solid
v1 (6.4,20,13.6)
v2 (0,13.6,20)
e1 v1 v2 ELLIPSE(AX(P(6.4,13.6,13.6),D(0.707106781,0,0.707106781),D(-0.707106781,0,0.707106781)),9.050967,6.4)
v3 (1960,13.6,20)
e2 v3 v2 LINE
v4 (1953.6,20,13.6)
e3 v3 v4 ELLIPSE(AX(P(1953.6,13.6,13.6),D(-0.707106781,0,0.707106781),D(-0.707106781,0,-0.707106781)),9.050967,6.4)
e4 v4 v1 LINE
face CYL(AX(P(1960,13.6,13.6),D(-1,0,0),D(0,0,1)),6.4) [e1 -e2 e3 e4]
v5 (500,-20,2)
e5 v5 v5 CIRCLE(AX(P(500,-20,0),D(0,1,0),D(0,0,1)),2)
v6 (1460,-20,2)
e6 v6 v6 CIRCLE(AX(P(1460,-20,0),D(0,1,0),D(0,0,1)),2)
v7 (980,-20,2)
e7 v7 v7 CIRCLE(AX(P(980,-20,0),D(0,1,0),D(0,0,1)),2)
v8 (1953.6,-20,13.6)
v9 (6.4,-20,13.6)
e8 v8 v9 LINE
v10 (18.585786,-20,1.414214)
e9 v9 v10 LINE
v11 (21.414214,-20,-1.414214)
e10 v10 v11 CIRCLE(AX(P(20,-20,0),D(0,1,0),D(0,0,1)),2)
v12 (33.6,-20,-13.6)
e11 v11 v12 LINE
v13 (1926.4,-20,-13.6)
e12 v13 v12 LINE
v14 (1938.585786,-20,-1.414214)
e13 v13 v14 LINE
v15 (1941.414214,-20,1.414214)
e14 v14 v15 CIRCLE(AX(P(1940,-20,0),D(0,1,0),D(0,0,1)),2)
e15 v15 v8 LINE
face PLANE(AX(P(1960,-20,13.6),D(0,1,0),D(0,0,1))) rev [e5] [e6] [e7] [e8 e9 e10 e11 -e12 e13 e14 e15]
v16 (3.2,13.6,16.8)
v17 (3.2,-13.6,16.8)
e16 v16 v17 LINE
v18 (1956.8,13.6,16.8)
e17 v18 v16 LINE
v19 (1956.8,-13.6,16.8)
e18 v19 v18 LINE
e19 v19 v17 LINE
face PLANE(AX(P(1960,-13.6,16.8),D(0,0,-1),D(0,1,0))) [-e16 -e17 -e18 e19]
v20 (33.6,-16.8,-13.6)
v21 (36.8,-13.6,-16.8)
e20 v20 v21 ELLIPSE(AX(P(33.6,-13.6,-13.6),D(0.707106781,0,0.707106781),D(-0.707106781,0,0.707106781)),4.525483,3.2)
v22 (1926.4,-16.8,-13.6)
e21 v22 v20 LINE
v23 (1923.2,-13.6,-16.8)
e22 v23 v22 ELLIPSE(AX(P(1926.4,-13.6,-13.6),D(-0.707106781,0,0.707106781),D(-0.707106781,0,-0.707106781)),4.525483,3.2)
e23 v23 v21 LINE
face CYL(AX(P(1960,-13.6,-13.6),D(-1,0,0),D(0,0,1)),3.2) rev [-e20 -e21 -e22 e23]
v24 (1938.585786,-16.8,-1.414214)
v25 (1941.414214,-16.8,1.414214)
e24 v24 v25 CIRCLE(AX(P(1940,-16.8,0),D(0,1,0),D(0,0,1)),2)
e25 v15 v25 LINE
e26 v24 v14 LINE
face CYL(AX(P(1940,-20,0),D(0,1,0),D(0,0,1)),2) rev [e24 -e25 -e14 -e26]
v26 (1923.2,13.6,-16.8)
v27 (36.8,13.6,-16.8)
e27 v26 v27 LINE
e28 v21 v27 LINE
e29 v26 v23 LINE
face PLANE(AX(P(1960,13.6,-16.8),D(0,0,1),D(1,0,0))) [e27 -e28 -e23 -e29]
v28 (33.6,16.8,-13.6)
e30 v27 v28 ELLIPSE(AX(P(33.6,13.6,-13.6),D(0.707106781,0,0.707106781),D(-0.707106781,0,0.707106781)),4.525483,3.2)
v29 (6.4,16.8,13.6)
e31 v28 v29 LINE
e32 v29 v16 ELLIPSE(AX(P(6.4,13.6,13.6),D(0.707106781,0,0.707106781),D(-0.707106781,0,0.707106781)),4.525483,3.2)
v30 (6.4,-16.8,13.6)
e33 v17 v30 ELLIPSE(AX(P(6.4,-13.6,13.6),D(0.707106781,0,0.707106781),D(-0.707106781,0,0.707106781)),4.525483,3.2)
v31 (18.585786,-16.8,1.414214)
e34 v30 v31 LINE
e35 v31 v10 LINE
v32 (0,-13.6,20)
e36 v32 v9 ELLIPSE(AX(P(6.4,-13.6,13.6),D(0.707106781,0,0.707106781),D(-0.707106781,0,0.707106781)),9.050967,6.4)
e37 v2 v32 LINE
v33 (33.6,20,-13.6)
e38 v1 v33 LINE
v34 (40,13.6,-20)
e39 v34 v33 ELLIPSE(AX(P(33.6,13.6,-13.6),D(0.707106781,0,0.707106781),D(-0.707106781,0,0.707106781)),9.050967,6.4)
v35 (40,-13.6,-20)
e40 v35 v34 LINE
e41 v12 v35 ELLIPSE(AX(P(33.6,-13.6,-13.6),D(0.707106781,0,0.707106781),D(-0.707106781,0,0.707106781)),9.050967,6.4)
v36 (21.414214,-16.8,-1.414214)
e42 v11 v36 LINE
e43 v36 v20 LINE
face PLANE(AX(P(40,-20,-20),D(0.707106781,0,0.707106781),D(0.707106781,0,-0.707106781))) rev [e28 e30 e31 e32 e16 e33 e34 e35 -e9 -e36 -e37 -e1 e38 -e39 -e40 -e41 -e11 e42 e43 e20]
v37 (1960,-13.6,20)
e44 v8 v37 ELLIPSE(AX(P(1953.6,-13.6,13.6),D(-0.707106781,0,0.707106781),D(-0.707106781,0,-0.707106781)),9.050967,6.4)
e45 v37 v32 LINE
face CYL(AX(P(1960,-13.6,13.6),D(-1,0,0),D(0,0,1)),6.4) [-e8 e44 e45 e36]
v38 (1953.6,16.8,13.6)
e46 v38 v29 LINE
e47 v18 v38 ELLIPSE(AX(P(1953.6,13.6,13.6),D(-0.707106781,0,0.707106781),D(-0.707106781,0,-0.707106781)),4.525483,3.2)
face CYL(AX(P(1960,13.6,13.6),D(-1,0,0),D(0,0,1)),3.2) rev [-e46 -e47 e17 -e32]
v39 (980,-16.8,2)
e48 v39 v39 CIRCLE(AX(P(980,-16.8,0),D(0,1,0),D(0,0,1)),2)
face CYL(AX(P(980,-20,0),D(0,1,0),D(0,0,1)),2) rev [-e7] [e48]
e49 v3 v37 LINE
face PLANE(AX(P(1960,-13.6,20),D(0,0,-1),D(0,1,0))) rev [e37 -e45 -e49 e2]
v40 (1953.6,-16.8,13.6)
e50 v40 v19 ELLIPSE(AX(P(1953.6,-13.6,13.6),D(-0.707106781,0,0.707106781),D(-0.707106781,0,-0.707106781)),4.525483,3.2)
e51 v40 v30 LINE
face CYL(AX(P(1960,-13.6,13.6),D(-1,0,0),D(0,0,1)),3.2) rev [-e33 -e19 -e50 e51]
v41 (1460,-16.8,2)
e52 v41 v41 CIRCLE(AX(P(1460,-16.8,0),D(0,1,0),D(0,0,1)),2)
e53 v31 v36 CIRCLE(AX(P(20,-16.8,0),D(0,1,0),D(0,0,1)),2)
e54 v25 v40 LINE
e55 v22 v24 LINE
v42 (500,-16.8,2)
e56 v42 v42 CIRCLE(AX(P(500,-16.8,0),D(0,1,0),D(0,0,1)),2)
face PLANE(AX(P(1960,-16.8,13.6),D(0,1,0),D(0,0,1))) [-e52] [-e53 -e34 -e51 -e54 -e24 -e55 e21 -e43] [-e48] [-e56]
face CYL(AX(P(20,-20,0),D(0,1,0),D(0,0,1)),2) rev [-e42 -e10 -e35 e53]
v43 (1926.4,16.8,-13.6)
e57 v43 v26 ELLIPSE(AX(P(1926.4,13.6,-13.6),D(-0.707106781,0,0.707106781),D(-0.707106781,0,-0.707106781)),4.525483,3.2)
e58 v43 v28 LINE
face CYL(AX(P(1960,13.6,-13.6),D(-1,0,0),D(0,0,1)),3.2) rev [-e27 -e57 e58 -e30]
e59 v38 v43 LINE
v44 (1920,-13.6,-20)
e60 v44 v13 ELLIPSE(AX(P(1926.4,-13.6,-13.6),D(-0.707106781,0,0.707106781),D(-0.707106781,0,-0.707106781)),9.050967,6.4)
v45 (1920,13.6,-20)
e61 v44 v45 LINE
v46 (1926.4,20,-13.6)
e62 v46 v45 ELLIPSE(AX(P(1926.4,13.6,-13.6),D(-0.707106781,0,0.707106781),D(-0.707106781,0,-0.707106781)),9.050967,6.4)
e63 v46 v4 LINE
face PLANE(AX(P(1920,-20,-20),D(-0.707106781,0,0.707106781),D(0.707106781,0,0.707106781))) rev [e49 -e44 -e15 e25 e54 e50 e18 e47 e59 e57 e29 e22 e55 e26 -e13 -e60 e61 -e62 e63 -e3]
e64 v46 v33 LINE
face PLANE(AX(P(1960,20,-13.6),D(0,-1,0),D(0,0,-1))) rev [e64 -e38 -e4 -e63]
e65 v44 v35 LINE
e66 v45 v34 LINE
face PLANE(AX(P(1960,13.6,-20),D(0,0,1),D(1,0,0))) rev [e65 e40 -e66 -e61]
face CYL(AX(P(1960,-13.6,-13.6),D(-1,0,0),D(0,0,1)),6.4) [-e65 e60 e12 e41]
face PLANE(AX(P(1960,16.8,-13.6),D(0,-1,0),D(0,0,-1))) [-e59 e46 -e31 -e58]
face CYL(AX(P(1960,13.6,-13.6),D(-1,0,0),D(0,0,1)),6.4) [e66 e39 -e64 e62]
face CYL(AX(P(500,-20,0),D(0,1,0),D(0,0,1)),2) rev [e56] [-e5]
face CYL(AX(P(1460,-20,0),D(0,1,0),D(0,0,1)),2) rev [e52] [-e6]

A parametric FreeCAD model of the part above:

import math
import FreeCAD as App
import Part
import Sketcher

V = App.Vector
Q = App.Units.Quantity

doc = App.newDocument("Part")
body = doc.addObject("PartDesign::Body", "Body")

sketch1 = body.newObject("Sketcher::SketchObject", "Sketch")
sketch1.AttachmentSupport = (doc.getObject("YZ_Plane"), [""])
sketch1.MapMode = "FlatFace"
sketch1.addGeometry(Part.LineSegment(V(-20, 13.6, 0), V(-20, -13.6, 0)), False)
sketch1.addGeometry(Part.ArcOfCircle(Part.Circle(V(-13.6, -13.6, 0), V(0, 0, 1), 6.4), math.radians(180), math.radians(270)), False)
sketch1.addGeometry(Part.LineSegment(V(-13.6, -20, 0), V(13.6, -20, 0)), False)
sketch1.addGeometry(Part.ArcOfCircle(Part.Circle(V(13.6, -13.6, 0), V(0, 0, 1), 6.4), math.radians(-90), math.radians(0)), False)
sketch1.addGeometry(Part.LineSegment(V(20, -13.6, 0), V(20, 13.6, 0)), False)
sketch1.addGeometry(Part.ArcOfCircle(Part.Circle(V(13.6, 13.6, 0), V(0, 0, 1), 6.4), math.radians(0), math.radians(90)), False)
sketch1.addGeometry(Part.LineSegment(V(13.6, 20, 0), V(-13.6, 20, 0)), False)
sketch1.addGeometry(Part.ArcOfCircle(Part.Circle(V(-13.6, 13.6, 0), V(0, 0, 1), 6.4), math.radians(90), math.radians(180)), False)
sketch1.addGeometry(Part.LineSegment(V(-16.8, -13.6, 0), V(-16.8, 13.6, 0)), False)
sketch1.addGeometry(Part.ArcOfCircle(Part.Circle(V(-13.6, 13.6, 0), V(0, 0, 1), 3.2), math.radians(90), math.radians(180)), False)
sketch1.addGeometry(Part.LineSegment(V(-13.6, 16.8, 0), V(13.6, 16.8, 0)), False)
sketch1.addGeometry(Part.ArcOfCircle(Part.Circle(V(13.6, 13.6, 0), V(0, 0, 1), 3.2), math.radians(0), math.radians(90)), False)
sketch1.addGeometry(Part.LineSegment(V(16.8, 13.6, 0), V(16.8, -13.6, 0)), False)
sketch1.addGeometry(Part.ArcOfCircle(Part.Circle(V(13.6, -13.6, 0), V(0, 0, 1), 3.2), math.radians(-90), math.radians(0)), False)
sketch1.addGeometry(Part.LineSegment(V(13.6, -16.8, 0), V(-13.6, -16.8, 0)), False)
sketch1.addGeometry(Part.ArcOfCircle(Part.Circle(V(-13.6, -13.6, 0), V(0, 0, 1), 3.2), math.radians(180), math.radians(270)), False)
sketch1.addConstraint(Sketcher.Constraint("Tangent", 0, 2, 1, 1))
sketch1.addConstraint(Sketcher.Constraint("Tangent", 1, 2, 2, 1))
sketch1.addConstraint(Sketcher.Constraint("Tangent", 2, 2, 3, 1))
sketch1.addConstraint(Sketcher.Constraint("Tangent", 3, 2, 4, 1))
sketch1.addConstraint(Sketcher.Constraint("Tangent", 4, 2, 5, 1))
sketch1.addConstraint(Sketcher.Constraint("Tangent", 5, 2, 6, 1))
sketch1.addConstraint(Sketcher.Constraint("Tangent", 6, 2, 7, 1))
sketch1.addConstraint(Sketcher.Constraint("Tangent", 7, 2, 0, 1))
sketch1.addConstraint(Sketcher.Constraint("Tangent", 8, 2, 9, 2))
sketch1.addConstraint(Sketcher.Constraint("Tangent", 9, 1, 10, 1))
sketch1.addConstraint(Sketcher.Constraint("Tangent", 10, 2, 11, 2))
sketch1.addConstraint(Sketcher.Constraint("Tangent", 11, 1, 12, 1))
sketch1.addConstraint(Sketcher.Constraint("Tangent", 12, 2, 13, 2))
sketch1.addConstraint(Sketcher.Constraint("Tangent", 13, 1, 14, 1))
sketch1.addConstraint(Sketcher.Constraint("Tangent", 14, 2, 15, 2))
sketch1.addConstraint(Sketcher.Constraint("Tangent", 15, 1, 8, 1))
sketch1.addConstraint(Sketcher.Constraint("Vertical", 0))
sketch1.addConstraint(Sketcher.Constraint("Horizontal", 2))
sketch1.addConstraint(Sketcher.Constraint("Vertical", 4))
sketch1.addConstraint(Sketcher.Constraint("Horizontal", 6))
sketch1.addConstraint(Sketcher.Constraint("Vertical", 8))
sketch1.addConstraint(Sketcher.Constraint("Horizontal", 10))
sketch1.addConstraint(Sketcher.Constraint("Vertical", 12))
sketch1.addConstraint(Sketcher.Constraint("Horizontal", 14))
sketch1.addConstraint(Sketcher.Constraint("Coincident", 9, 3, 7, 3))
sketch1.addConstraint(Sketcher.Constraint("Coincident", 11, 3, 5, 3))
sketch1.addConstraint(Sketcher.Constraint("Coincident", 13, 3, 3, 3))
sketch1.addConstraint(Sketcher.Constraint("Equal", 1, 3))
sketch1.addConstraint(Sketcher.Constraint("Equal", 3, 5))
sketch1.addConstraint(Sketcher.Constraint("Equal", 5, 7))
sketch1.addConstraint(Sketcher.Constraint("Equal", 13, 15))
sketch1.addConstraint(Sketcher.Constraint("Symmetric", 1, 3, 5, 3, -1, 1))
sketch1.addConstraint(Sketcher.Constraint("Equal", 14, 0))
sketch1.addConstraint(Sketcher.Constraint("Radius", 1, Q("6.4 mm")))
sketch1.addConstraint(Sketcher.Constraint("Radius", 9, Q("3.2 mm")))
sketch1.addConstraint(Sketcher.Constraint("DistanceX", 2, 1, 2, 2, Q("27.2 mm")))
pad1 = body.newObject("PartDesign::Pad", "Pad")
pad1.Profile = sketch1
pad1.Length = 1960

sketch2 = body.newObject("Sketcher::SketchObject", "Sketch001")
sketch2.AttachmentSupport = (doc.getObject("XZ_Plane"), [""])
sketch2.MapMode = "FlatFace"
sketch2.AttachmentOffset = App.Placement(V(0, 0, -20), App.Rotation())
sketch2.addGeometry(Part.LineSegment(V(1960, 20, 0), V(1960, -20, 0)), False)
sketch2.addGeometry(Part.LineSegment(V(1960, -20, 0), V(1920, -20, 0)), False)
sketch2.addGeometry(Part.LineSegment(V(1920, -20, 0), V(1960, 20, 0)), False)
sketch2.addGeometry(Part.LineSegment(V(0, -20, 0), V(0, 20, 0)), False)
sketch2.addGeometry(Part.LineSegment(V(0, 20, 0), V(40, -20, 0)), False)
sketch2.addGeometry(Part.LineSegment(V(40, -20, 0), V(0, -20, 0)), False)
sketch2.addConstraint(Sketcher.Constraint("Coincident", 0, 2, 1, 1))
sketch2.addConstraint(Sketcher.Constraint("Coincident", 1, 2, 2, 1))
sketch2.addConstraint(Sketcher.Constraint("Coincident", 2, 2, 0, 1))
sketch2.addConstraint(Sketcher.Constraint("Coincident", 3, 2, 4, 1))
sketch2.addConstraint(Sketcher.Constraint("Coincident", 4, 2, 5, 1))
sketch2.addConstraint(Sketcher.Constraint("Coincident", 5, 2, 3, 1))
sketch2.addConstraint(Sketcher.Constraint("Vertical", 0))
sketch2.addConstraint(Sketcher.Constraint("Horizontal", 1))
sketch2.addConstraint(Sketcher.Constraint("Vertical", 3))
sketch2.addConstraint(Sketcher.Constraint("Horizontal", 5))
sketch2.addConstraint(Sketcher.Constraint("Symmetric", 3, 2, 5, 2, -1, 1))
sketch2.addConstraint(Sketcher.Constraint("Perpendicular", 2, 4))
sketch2.addConstraint(Sketcher.Constraint("Horizontal", 2, 2, 3, 2))
sketch2.addConstraint(Sketcher.Constraint("Horizontal", 1, 2, 4, 2))
sketch2.addConstraint(Sketcher.Constraint("Equal", 1, 5))
sketch2.addConstraint(Sketcher.Constraint("DistanceX", 1, 2, 1, 1, Q("40 mm")))
sketch2.addConstraint(Sketcher.Constraint("DistanceX", -1, 1, 0, 2, Q("1960 mm")))
pocket1 = body.newObject("PartDesign::Pocket", "Pocket")
pocket1.Profile = sketch2
pocket1.Type = "ThroughAll"
pocket1.Reversed = True

sketch3 = body.newObject("Sketcher::SketchObject", "Sketch002")
sketch3.AttachmentSupport = (doc.getObject("XZ_Plane"), [""])
sketch3.MapMode = "FlatFace"
sketch3.addGeometry(Part.Circle(V(980, 0, 0), V(0, 0, 1), 2), False)
sketch3.addGeometry(Part.Circle(V(20, 0, 0), V(0, 0, 1), 2), False)
sketch3.addGeometry(Part.Circle(V(1940, 0, 0), V(0, 0, 1), 2), False)
sketch3.addGeometry(Part.Circle(V(500, 0, 0), V(0, 0, 1), 2), False)
sketch3.addGeometry(Part.Circle(V(1460, 0, 0), V(0, 0, 1), 2), False)
sketch3.addConstraint(Sketcher.Constraint("Equal", 0, 1))
sketch3.addConstraint(Sketcher.Constraint("Equal", 1, 2))
sketch3.addConstraint(Sketcher.Constraint("Equal", 2, 3))
sketch3.addConstraint(Sketcher.Constraint("Equal", 3, 4))
sketch3.addConstraint(Sketcher.Constraint("PointOnObject", 0, 3, -1))
sketch3.addConstraint(Sketcher.Constraint("PointOnObject", 1, 3, -1))
sketch3.addConstraint(Sketcher.Constraint("PointOnObject", 2, 3, -1))
sketch3.addConstraint(Sketcher.Constraint("PointOnObject", 3, 3, -1))
sketch3.addConstraint(Sketcher.Constraint("PointOnObject", 4, 3, -1))
sketch3.addConstraint(Sketcher.Constraint("Diameter", 0, Q("4 mm")))
sketch3.addConstraint(Sketcher.Constraint("DistanceX", -1, 1, 0, 3, Q("980 mm")))
sketch3.addConstraint(Sketcher.Constraint("DistanceX", -1, 1, 1, 3, Q("20 mm")))
sketch3.addConstraint(Sketcher.Constraint("DistanceX", -1, 1, 2, 3, Q("1940 mm")))
sketch3.addConstraint(Sketcher.Constraint("DistanceX", -1, 1, 3, 3, Q("500 mm")))
sketch3.addConstraint(Sketcher.Constraint("DistanceX", -1, 1, 4, 3, Q("1460 mm")))
pocket2 = body.newObject("PartDesign::Pocket", "Pocket001")
pocket2.Profile = sketch3
pocket2.Type = "ThroughAll"
pocket2.Reversed = True

doc.recompute()
